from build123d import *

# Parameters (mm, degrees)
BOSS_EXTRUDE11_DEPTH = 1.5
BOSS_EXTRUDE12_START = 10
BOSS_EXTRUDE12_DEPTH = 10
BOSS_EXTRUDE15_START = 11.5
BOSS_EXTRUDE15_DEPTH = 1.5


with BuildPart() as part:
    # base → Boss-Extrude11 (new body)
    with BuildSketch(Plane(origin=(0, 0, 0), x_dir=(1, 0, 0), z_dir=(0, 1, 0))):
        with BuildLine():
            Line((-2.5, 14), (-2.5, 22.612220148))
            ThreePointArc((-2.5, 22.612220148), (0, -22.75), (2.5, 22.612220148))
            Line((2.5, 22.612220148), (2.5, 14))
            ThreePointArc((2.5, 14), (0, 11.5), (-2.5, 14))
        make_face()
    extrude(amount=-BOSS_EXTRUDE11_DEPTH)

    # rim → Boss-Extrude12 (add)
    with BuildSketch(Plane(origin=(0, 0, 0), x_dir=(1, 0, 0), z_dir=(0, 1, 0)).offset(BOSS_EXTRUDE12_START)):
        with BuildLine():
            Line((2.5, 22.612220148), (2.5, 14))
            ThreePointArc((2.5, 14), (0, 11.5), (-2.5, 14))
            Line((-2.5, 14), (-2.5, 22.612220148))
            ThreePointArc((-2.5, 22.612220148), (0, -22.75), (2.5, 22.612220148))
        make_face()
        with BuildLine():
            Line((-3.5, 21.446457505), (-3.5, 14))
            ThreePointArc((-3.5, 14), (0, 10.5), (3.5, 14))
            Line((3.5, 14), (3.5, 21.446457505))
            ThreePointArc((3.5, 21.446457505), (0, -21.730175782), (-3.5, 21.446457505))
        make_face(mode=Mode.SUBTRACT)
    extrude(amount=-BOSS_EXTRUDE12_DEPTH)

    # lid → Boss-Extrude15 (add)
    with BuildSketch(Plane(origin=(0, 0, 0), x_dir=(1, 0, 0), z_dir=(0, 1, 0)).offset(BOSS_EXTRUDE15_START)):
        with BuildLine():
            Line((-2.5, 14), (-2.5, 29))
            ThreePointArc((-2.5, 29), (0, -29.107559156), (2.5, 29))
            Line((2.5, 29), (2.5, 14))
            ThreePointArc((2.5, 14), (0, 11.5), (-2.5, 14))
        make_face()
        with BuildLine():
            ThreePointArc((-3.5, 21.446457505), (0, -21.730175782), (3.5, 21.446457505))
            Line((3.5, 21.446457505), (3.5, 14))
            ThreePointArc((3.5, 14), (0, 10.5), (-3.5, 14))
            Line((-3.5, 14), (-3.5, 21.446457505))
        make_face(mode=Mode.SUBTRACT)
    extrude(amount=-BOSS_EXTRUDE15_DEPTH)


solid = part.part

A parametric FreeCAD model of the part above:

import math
import FreeCAD as App
import Part
import Sketcher
from FreeCAD import Vector

doc = App.newDocument("Part")
body = doc.addObject("PartDesign::Body", "Body")

# Sketch on XZ plane
sketch1 = body.newObject("Sketcher::SketchObject", "Sketch")
sketch1.AttachmentSupport = (doc.getObject("XZ_Plane"), [""])
sketch1.MapMode = "FlatFace"
sketch1.addGeometry([
    Part.LineSegment(Vector(-2.5, -14, 0), Vector(-2.5, -22.6, 0)),
    Part.ArcOfCircle(Part.Circle(Vector(0, 0, 0), Vector(0, 0, 1), 22.8), math.radians(-84), math.radians(264)),
    Part.LineSegment(Vector(2.5, -22.6, 0), Vector(2.5, -14, 0)),
    Part.ArcOfCircle(Part.Circle(Vector(0, -14, 0), Vector(0, 0, 1), 2.5), math.radians(0), math.radians(180)),
], False)
sketch1.addConstraint([
    Sketcher.Constraint("Coincident", 0, 2, 1, 2),
    Sketcher.Constraint("Coincident", 1, 1, 2, 1),
    Sketcher.Constraint("Tangent", 2, 2, 3, 1),
    Sketcher.Constraint("Tangent", 3, 2, 0, 1),
    Sketcher.Constraint("Vertical", 0),
    Sketcher.Constraint("Vertical", 2),
    Sketcher.Constraint("Coincident", 1, 3, -1, 1),
    Sketcher.Constraint("PointOnObject", 3, 3, -2),
    Sketcher.Constraint("Radius", 3, 2.5),
    Sketcher.Constraint("Radius", 1, 22.75),
    Sketcher.Constraint("DistanceY", 3, 3, -1, 1, 14.0),
])
pad1 = body.newObject("PartDesign::Pad", "Pad")
pad1.Profile = sketch1
pad1.Length = 1.5

# Sketch on XZ plane
sketch2 = body.newObject("Sketcher::SketchObject", "Sketch001")
sketch2.AttachmentSupport = (doc.getObject("XZ_Plane"), [""])
sketch2.MapMode = "FlatFace"
sketch2.AttachmentOffset = App.Placement(Vector(0, 0, -10), App.Rotation())
sketch2.addGeometry([
    Part.LineSegment(Vector(2.5, -22.6, 0), Vector(2.5, -14, 0)),  # 0
    Part.ArcOfCircle(Part.Circle(Vector(0, -14, 0), Vector(0, 0, 1), 2.5), math.radians(0), math.radians(180)),  # 1
    Part.LineSegment(Vector(-2.5, -14, 0), Vector(-2.5, -22.6, 0)),  # 2
    Part.ArcOfCircle(Part.Circle(Vector(0, 0, 0), Vector(0, 0, 1), 22.8), math.radians(-84), math.radians(264)),  # 3
    Part.ArcOfCircle(Part.Circle(Vector(0, 0, 0), Vector(0, 0, 1), 21.7), math.radians(-81), math.radians(261)),  # 4
    Part.LineSegment(Vector(-3.5, -21.4, 0), Vector(-3.5, -14, 0)),  # 5
    Part.ArcOfCircle(Part.Circle(Vector(0, -14, 0), Vector(0, 0, 1), 3.5), math.radians(0), math.radians(180)),  # 6
    Part.LineSegment(Vector(3.5, -14, 0), Vector(3.5, -21.4, 0)),  # 7
], False)
sketch2.addConstraint([
    Sketcher.Constraint("Tangent", 0, 2, 1, 1),
    Sketcher.Constraint("Tangent", 1, 2, 2, 1),
    Sketcher.Constraint("Coincident", 2, 2, 3, 2),
    Sketcher.Constraint("Coincident", 3, 1, 0, 1),
    Sketcher.Constraint("Coincident", 4, 2, 5, 1),
    Sketcher.Constraint("Tangent", 5, 2, 6, 2),
    Sketcher.Constraint("Tangent", 6, 1, 7, 1),
    Sketcher.Constraint("Coincident", 7, 2, 4, 1),
    Sketcher.Constraint("Vertical", 0),
    Sketcher.Constraint("Vertical", 2),
    Sketcher.Constraint("Vertical", 5),
    Sketcher.Constraint("Vertical", 7),
    Sketcher.Constraint("Coincident", 3, 3, -1, 1),
    Sketcher.Constraint("Coincident", 4, 3, -1, 1),
    Sketcher.Constraint("Coincident", 6, 3, 1, 3),
    Sketcher.Constraint("PointOnObject", 1, 3, -2),
    Sketcher.Constraint("Radius", 1, 2.5),
    Sketcher.Constraint("Radius", 6, 3.5),
    Sketcher.Constraint("Radius", 3, 22.75),
    Sketcher.Constraint("DistanceY", 1, 3, -1, 1, 14.0),
    Sketcher.Constraint("Radius", 4, 21.730176),
])
pad2 = body.newObject("PartDesign::Pad", "Pad001")
pad2.Profile = sketch2
pad2.Length = 10

# Sketch on XZ plane
sketch3 = body.newObject("Sketcher::SketchObject", "Sketch002")
sketch3.AttachmentSupport = (doc.getObject("XZ_Plane"), [""])
sketch3.MapMode = "FlatFace"
sketch3.AttachmentOffset = App.Placement(Vector(0, 0, -11.5), App.Rotation())
sketch3.addGeometry([
    Part.LineSegment(Vector(-2.5, -14, 0), Vector(-2.5, -29, 0)),  # 0
    Part.ArcOfCircle(Part.Circle(Vector(0, 0, 0), Vector(0, 0, 1), 29.1), math.radians(-85), math.radians(265)),  # 1
    Part.LineSegment(Vector(2.5, -29, 0), Vector(2.5, -14, 0)),  # 2
    Part.ArcOfCircle(Part.Circle(Vector(0, -14, 0), Vector(0, 0, 1), 2.5), math.radians(0), math.radians(180)),  # 3
    Part.ArcOfCircle(Part.Circle(Vector(0, 0, 0), Vector(0, 0, 1), 21.7), math.radians(-81), math.radians(261)),  # 4
    Part.LineSegment(Vector(-3.5, -21.4, 0), Vector(-3.5, -14, 0)),  # 5
    Part.ArcOfCircle(Part.Circle(Vector(0, -14, 0), Vector(0, 0, 1), 3.5), math.radians(0), math.radians(180)),  # 6
    Part.LineSegment(Vector(3.5, -14, 0), Vector(3.5, -21.4, 0)),  # 7
], False)
sketch3.addConstraint([
    Sketcher.Constraint("Coincident", 0, 2, 1, 2),
    Sketcher.Constraint("Coincident", 1, 1, 2, 1),
    Sketcher.Constraint("Tangent", 2, 2, 3, 1),
    Sketcher.Constraint("Tangent", 3, 2, 0, 1),
    Sketcher.Constraint("Coincident", 4, 2, 5, 1),
    Sketcher.Constraint("Tangent", 5, 2, 6, 2),
    Sketcher.Constraint("Tangent", 6, 1, 7, 1),
    Sketcher.Constraint("Coincident", 7, 2, 4, 1),
    Sketcher.Constraint("Vertical", 0),
    Sketcher.Constraint("Vertical", 2),
    Sketcher.Constraint("Vertical", 5),
    Sketcher.Constraint("Vertical", 7),
    Sketcher.Constraint("Coincident", 1, 3, -1, 1),
    Sketcher.Constraint("Coincident", 4, 3, -1, 1),
    Sketcher.Constraint("Coincident", 6, 3, 3, 3),
    Sketcher.Constraint("PointOnObject", 3, 3, -2),
    Sketcher.Constraint("Radius", 3, 2.5),
    Sketcher.Constraint("Radius", 6, 3.5),
    Sketcher.Constraint("DistanceY", 0, 2, 0, 1, 15.0),
    Sketcher.Constraint("DistanceY", 3, 3, -1, 1, 14.0),
    Sketcher.Constraint("Radius", 4, 21.730176),
])
pad3 = body.newObject("PartDesign::Pad", "Pad002")
pad3.Profile = sketch3
pad3.Length = 1.5

doc.recompute()
